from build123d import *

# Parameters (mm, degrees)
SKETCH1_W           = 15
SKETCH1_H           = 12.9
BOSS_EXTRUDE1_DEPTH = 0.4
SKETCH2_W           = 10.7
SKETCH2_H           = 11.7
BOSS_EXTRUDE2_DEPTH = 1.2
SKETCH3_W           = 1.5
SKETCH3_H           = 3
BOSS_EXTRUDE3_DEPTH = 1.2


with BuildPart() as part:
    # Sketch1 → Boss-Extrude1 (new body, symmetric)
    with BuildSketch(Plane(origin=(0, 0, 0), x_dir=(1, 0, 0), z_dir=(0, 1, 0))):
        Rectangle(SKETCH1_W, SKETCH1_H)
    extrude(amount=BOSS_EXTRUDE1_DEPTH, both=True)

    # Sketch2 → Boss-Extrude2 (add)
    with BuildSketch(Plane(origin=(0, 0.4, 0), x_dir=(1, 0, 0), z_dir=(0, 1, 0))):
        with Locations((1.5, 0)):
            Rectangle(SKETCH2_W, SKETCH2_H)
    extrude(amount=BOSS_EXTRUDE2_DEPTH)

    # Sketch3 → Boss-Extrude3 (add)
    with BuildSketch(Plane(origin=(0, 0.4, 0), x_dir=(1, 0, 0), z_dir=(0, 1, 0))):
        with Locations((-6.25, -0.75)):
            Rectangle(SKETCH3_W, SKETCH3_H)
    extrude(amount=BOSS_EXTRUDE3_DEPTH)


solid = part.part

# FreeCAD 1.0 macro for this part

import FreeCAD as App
import Part
import Sketcher

V = App.Vector


def add_polygon(sketch, points):
    """Adds a closed chain of lines whose ends are joined by coincident constraints."""
    first, n = sketch.GeometryCount, len(points)
    for a, b in zip(points, points[1:] + points[:1]):
        sketch.addGeometry(Part.LineSegment(App.Vector(*a, 0), App.Vector(*b, 0)), False)
    for i in range(n):
        sketch.addConstraint(Sketcher.Constraint("Coincident", first + i, 2, first + (i + 1) % n, 1))

doc = App.newDocument("Part")
body = doc.addObject("PartDesign::Body", "Body")

sketch1 = doc.addObject("Sketcher::SketchObject", "Sketch")
body.addObject(sketch1)
sketch1.AttachmentSupport = (doc.XZ_Plane, [""])
sketch1.MapMode = "FlatFace"
add_polygon(sketch1, [(-8, -6), (-8, 6), (8, 6), (8, -6)])
sketch1.addConstraint([
    Sketcher.Constraint("Vertical", 0),
    Sketcher.Constraint("Horizontal", 1),
    Sketcher.Constraint("Vertical", 2),
    Sketcher.Constraint("Horizontal", 3),
    Sketcher.Constraint("Symmetric", 0, 2, 2, 2, -1, 1),
    Sketcher.Constraint("DistanceX", 1, 1, 1, 2, 15.0),
    Sketcher.Constraint("DistanceY", 0, 1, 0, 2, 12.9),
])
pad1 = doc.addObject("PartDesign::Pad", "Pad")
body.addObject(pad1)
pad1.Profile = sketch1
pad1.Length = 0.8
pad1.Midplane = True

sketch2 = doc.addObject("Sketcher::SketchObject", "Sketch001")
body.addObject(sketch2)
sketch2.AttachmentSupport = (doc.XZ_Plane, [""])
sketch2.MapMode = "FlatFace"
sketch2.AttachmentOffset = App.Placement(V(0, 0, -0.4), App.Rotation())
add_polygon(sketch2, [(-4, -6), (-4, 6), (7, 6), (7, -6)])
sketch2.addConstraint([
    Sketcher.Constraint("Vertical", 0),
    Sketcher.Constraint("Horizontal", 1),
    Sketcher.Constraint("Vertical", 2),
    Sketcher.Constraint("Horizontal", 3),
    Sketcher.Constraint("DistanceX", 1, 1, 1, 2, 10.7),
    Sketcher.Constraint("DistanceY", 0, 1, 0, 2, 11.7),
    Sketcher.Constraint("DistanceX", 0, 2, -1, 1, 3.85),
    Sketcher.Constraint("DistanceY", -1, 1, 0, 2, 5.85),
])
pad2 = doc.addObject("PartDesign::Pad", "Pad001")
body.addObject(pad2)
pad2.Profile = sketch2
pad2.Length = 1.2
pad2.Reversed = True

sketch3 = doc.addObject("Sketcher::SketchObject", "Sketch002")
body.addObject(sketch3)
sketch3.AttachmentSupport = (doc.XZ_Plane, [""])
sketch3.MapMode = "FlatFace"
sketch3.AttachmentOffset = App.Placement(V(0, 0, -0.4), App.Rotation())
add_polygon(sketch3, [(-7, -0.8), (-7, 2.2), (-5.5, 2.2), (-5.5, -0.8)])
sketch3.addConstraint([
    Sketcher.Constraint("Vertical", 0),
    Sketcher.Constraint("Horizontal", 1),
    Sketcher.Constraint("Vertical", 2),
    Sketcher.Constraint("Horizontal", 3),
    Sketcher.Constraint("DistanceY", 0, 1, 0, 2, 3.0),
    Sketcher.Constraint("DistanceX", 1, 1, 1, 2, 1.5),
    Sketcher.Constraint("DistanceX", 0, 2, -1, 1, 7.0),
    Sketcher.Constraint("DistanceY", -1, 1, 0, 2, 2.25),
])
pad3 = doc.addObject("PartDesign::Pad", "Pad002")
body.addObject(pad3)
pad3.Profile = sketch3
pad3.Length = 1.2
pad3.Reversed = True

doc.recompute()
